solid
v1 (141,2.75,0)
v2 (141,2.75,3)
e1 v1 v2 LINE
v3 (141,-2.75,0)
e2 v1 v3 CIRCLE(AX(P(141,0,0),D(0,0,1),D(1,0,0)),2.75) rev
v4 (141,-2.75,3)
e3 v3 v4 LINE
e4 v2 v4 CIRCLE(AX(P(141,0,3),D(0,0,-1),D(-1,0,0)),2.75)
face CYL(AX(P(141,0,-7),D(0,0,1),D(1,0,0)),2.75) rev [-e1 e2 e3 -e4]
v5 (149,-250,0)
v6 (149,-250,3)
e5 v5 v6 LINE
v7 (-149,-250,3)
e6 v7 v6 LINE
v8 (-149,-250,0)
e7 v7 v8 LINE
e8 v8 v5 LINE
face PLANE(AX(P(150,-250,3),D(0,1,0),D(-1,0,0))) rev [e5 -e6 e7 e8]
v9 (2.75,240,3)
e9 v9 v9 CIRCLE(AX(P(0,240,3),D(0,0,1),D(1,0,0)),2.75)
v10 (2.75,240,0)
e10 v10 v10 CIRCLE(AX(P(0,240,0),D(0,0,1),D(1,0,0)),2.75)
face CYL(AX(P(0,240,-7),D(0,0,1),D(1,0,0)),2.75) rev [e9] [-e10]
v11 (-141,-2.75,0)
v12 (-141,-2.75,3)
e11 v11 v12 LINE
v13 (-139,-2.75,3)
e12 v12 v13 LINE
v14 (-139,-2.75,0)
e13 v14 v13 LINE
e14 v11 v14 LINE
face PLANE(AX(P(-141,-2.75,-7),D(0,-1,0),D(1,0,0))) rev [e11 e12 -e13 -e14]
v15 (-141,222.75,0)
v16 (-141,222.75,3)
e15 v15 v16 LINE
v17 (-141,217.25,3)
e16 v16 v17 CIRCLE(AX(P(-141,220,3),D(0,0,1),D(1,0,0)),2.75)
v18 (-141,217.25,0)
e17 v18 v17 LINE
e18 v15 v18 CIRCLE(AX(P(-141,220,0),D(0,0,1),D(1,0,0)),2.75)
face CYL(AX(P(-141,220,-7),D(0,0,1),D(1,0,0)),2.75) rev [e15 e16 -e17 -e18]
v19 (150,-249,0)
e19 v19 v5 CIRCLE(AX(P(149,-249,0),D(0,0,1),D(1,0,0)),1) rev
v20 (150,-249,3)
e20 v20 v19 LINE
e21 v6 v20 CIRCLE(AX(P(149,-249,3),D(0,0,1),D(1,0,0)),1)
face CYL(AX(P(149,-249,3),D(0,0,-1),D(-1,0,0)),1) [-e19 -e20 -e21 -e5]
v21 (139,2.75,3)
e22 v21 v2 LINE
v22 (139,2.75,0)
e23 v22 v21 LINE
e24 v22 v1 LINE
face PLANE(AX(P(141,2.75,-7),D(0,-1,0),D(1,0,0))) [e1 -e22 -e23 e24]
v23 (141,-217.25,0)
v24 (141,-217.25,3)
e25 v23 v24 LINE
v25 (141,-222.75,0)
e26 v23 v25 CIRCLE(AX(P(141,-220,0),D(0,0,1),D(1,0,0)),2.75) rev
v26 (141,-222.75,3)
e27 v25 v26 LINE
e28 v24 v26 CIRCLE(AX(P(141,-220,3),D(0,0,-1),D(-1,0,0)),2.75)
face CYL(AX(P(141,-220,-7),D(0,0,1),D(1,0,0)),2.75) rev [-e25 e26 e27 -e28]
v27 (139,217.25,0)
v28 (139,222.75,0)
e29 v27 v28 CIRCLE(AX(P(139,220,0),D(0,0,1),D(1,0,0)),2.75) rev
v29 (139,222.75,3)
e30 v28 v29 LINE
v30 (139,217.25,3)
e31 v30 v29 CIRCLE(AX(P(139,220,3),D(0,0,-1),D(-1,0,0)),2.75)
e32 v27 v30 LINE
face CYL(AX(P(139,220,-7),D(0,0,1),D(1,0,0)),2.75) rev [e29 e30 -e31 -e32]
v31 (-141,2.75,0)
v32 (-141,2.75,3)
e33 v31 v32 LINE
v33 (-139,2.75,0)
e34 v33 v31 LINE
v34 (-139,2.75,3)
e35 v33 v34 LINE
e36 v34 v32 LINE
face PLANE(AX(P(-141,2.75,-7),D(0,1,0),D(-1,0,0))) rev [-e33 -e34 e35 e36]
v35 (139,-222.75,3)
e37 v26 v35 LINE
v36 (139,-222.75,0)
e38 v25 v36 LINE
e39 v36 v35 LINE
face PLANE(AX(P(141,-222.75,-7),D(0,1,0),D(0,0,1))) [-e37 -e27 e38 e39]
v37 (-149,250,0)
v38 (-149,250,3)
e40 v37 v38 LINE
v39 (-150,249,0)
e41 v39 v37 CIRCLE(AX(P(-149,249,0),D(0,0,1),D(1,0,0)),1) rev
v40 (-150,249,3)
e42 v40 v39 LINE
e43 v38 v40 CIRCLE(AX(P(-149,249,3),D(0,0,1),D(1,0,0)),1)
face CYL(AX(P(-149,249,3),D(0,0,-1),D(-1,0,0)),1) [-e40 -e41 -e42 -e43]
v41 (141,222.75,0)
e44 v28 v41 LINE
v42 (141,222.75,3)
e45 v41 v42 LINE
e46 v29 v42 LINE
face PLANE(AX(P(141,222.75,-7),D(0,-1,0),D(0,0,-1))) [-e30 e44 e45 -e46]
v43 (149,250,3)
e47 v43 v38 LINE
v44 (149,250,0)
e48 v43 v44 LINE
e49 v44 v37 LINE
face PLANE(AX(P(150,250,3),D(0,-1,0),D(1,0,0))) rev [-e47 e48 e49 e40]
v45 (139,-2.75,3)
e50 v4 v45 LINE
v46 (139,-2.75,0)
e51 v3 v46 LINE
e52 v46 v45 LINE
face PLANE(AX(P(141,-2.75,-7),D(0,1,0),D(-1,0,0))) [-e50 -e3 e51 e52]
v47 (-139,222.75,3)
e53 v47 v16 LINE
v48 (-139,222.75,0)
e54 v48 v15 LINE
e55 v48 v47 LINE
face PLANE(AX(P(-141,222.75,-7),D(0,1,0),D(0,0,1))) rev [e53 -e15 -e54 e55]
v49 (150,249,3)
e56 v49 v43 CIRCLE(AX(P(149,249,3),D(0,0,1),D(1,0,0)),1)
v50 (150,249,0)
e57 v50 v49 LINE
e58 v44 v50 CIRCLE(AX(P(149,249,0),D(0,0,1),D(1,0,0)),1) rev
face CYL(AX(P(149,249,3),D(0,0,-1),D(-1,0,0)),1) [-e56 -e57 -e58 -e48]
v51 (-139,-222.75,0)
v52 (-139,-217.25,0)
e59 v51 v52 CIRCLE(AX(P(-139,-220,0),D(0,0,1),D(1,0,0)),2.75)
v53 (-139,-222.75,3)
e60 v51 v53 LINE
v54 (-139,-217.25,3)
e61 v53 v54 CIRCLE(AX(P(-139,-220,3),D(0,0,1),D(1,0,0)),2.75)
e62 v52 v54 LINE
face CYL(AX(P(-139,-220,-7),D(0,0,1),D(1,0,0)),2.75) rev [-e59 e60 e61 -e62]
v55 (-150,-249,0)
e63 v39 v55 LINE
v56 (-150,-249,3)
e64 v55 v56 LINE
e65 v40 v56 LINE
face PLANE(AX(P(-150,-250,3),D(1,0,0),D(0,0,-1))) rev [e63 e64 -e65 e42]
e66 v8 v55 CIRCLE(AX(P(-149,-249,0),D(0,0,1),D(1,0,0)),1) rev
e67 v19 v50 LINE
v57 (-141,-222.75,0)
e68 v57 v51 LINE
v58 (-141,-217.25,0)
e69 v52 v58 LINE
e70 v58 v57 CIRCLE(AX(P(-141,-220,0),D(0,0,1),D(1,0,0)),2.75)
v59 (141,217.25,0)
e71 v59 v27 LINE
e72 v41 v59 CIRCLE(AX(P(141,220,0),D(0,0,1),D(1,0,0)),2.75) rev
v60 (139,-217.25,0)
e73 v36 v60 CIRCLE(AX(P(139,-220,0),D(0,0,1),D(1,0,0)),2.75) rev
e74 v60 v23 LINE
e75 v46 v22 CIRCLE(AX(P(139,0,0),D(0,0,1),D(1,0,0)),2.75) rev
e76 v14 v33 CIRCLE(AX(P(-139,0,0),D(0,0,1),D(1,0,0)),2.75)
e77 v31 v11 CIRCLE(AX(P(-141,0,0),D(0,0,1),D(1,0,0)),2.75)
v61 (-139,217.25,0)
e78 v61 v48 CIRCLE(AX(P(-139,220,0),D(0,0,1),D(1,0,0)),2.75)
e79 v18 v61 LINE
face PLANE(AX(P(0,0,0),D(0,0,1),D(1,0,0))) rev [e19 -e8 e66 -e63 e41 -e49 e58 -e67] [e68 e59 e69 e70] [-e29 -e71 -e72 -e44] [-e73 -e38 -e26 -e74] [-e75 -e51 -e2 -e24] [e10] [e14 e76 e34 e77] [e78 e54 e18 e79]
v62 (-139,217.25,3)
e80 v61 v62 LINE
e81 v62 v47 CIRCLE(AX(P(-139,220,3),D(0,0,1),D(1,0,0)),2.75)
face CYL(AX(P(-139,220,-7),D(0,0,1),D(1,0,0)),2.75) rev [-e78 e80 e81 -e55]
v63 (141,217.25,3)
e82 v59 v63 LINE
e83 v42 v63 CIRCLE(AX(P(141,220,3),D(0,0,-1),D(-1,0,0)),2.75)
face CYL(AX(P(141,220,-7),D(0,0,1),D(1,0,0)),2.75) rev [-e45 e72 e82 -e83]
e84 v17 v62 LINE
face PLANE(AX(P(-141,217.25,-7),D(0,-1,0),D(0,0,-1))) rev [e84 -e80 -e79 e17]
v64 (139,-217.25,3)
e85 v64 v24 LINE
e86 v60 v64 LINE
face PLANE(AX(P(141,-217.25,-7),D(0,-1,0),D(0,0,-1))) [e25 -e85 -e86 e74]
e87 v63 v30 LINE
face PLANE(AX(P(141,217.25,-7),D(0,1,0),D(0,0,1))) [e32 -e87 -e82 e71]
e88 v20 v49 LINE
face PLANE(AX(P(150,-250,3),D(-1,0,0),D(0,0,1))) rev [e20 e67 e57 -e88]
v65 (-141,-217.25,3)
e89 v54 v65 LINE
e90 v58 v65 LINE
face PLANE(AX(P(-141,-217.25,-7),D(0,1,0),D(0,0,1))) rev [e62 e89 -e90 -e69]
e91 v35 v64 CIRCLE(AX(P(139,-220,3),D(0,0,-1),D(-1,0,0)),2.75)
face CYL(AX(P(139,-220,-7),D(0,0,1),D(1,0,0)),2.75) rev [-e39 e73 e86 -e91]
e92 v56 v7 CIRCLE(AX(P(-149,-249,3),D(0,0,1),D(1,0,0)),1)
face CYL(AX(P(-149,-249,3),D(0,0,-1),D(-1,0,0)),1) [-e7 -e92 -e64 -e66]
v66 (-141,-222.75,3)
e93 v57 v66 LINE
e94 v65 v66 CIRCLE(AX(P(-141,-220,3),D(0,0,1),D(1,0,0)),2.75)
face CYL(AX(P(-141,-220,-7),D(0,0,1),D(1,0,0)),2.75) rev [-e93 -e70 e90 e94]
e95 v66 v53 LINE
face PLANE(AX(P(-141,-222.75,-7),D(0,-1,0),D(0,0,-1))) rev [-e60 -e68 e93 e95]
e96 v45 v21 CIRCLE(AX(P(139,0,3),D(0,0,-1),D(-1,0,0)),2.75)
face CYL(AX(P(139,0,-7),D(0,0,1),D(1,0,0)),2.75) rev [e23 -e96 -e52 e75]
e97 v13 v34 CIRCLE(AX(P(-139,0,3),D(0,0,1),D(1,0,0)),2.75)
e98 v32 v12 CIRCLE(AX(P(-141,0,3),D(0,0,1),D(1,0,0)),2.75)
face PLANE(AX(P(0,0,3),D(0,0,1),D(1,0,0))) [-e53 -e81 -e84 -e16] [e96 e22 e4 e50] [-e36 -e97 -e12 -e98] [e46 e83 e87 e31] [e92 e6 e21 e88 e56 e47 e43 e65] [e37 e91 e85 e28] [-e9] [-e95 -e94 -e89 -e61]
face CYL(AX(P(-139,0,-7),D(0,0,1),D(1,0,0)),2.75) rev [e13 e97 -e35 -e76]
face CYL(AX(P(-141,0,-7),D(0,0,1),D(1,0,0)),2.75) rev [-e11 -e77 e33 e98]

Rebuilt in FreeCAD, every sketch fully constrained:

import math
import FreeCAD as App
import Part
import Sketcher

V = App.Vector
Q = App.Units.Quantity


def edges_at(feature, points):
    """Names of the edges that pass closest to the given points."""
    edges = feature.Shape.Edges
    near = lambda p: min(range(len(edges)), key=lambda i: edges[i].distToShape(Part.Vertex(*p))[0])
    return sorted({f"Edge{near(p) + 1}" for p in points})

doc = App.newDocument("Part")
body = doc.addObject("PartDesign::Body", "Body")

# Sketch on XY plane
sketch1 = body.newObject("Sketcher::SketchObject", "Sketch")
sketch1.AttachmentSupport = (doc.getObject("XY_Plane"), [""])
sketch1.MapMode = "FlatFace"
sketch1.addGeometry([
    Part.LineSegment(V(-150, 250, 0), V(-150, -250, 0)),
    Part.LineSegment(V(-150, -250, 0), V(150, -250, 0)),
    Part.LineSegment(V(150, -250, 0), V(150, 250, 0)),
    Part.LineSegment(V(150, 250, 0), V(-150, 250, 0)),
], False)
sketch1.addConstraint([
    Sketcher.Constraint("Coincident", 0, 2, 1, 1),
    Sketcher.Constraint("Coincident", 1, 2, 2, 1),
    Sketcher.Constraint("Coincident", 2, 2, 3, 1),
    Sketcher.Constraint("Coincident", 3, 2, 0, 1),
    Sketcher.Constraint("Vertical", 0),
    Sketcher.Constraint("Horizontal", 1),
    Sketcher.Constraint("Vertical", 2),
    Sketcher.Constraint("Horizontal", 3),
    Sketcher.Constraint("Symmetric", 0, 2, 2, 2, -1, 1),
    Sketcher.Constraint("DistanceX", 1, 1, 1, 2, Q("300 mm")),
    Sketcher.Constraint("DistanceY", 0, 2, 0, 1, Q("500 mm")),
])
pad1 = body.newObject("PartDesign::Pad", "Pad")
pad1.Profile = sketch1
pad1.Length = 3

# Sketch on XY plane
sketch2 = body.newObject("Sketcher::SketchObject", "Sketch001")
sketch2.AttachmentSupport = (doc.getObject("XY_Plane"), [""])
sketch2.MapMode = "FlatFace"
sketch2.AttachmentOffset = App.Placement(V(0, 0, 3), App.Rotation())
sketch2.addGeometry([
    Part.Circle(V(0, 240, 0), V(0, 0, 1), 2.8),  # 0
    Part.LineSegment(V(-139, -217.2, 0), V(-141, -217.2, 0)),  # 1
    Part.ArcOfCircle(Part.Circle(V(-141, -220, 0), V(0, 0, 1), 2.8), math.radians(90), math.radians(270)),  # 2
    Part.LineSegment(V(-141, -222.8, 0), V(-139, -222.8, 0)),  # 3
    Part.ArcOfCircle(Part.Circle(V(-139, -220, 0), V(0, 0, 1), 2.8), math.radians(-90), math.radians(90)),  # 4
    Part.LineSegment(V(-139, 222.8, 0), V(-141, 222.8, 0)),  # 5
    Part.ArcOfCircle(Part.Circle(V(-141, 220, 0), V(0, 0, 1), 2.8), math.radians(90), math.radians(270)),  # 6
    Part.LineSegment(V(-141, 217.2, 0), V(-139, 217.2, 0)),  # 7
    Part.ArcOfCircle(Part.Circle(V(-139, 220, 0), V(0, 0, 1), 2.8), math.radians(-90), math.radians(90)),  # 8
    Part.LineSegment(V(-139, 2.8, 0), V(-141, 2.8, 0)),  # 9
    Part.ArcOfCircle(Part.Circle(V(-141, 0, 0), V(0, 0, 1), 2.8), math.radians(90), math.radians(270)),  # 10
    Part.LineSegment(V(-141, -2.8, 0), V(-139, -2.8, 0)),  # 11
    Part.ArcOfCircle(Part.Circle(V(-139, 0, 0), V(0, 0, 1), 2.8), math.radians(-90), math.radians(90)),  # 12
], False)
sketch2.addConstraint([
    Sketcher.Constraint("Tangent", 1, 2, 2, 1),
    Sketcher.Constraint("Tangent", 2, 2, 3, 1),
    Sketcher.Constraint("Tangent", 3, 2, 4, 1),
    Sketcher.Constraint("Tangent", 4, 2, 1, 1),
    Sketcher.Constraint("Tangent", 5, 2, 6, 1),
    Sketcher.Constraint("Tangent", 6, 2, 7, 1),
    Sketcher.Constraint("Tangent", 7, 2, 8, 1),
    Sketcher.Constraint("Tangent", 8, 2, 5, 1),
    Sketcher.Constraint("Tangent", 9, 2, 10, 1),
    Sketcher.Constraint("Tangent", 10, 2, 11, 1),
    Sketcher.Constraint("Tangent", 11, 2, 12, 1),
    Sketcher.Constraint("Tangent", 12, 2, 9, 1),
    Sketcher.Constraint("Horizontal", 1),
    Sketcher.Constraint("Horizontal", 3),
    Sketcher.Constraint("Horizontal", 5),
    Sketcher.Constraint("Horizontal", 7),
    Sketcher.Constraint("Horizontal", 9),
    Sketcher.Constraint("Horizontal", 11),
    Sketcher.Constraint("Equal", 0, 2),
    Sketcher.Constraint("Equal", 4, 6),
    Sketcher.Constraint("Equal", 8, 10),
    Sketcher.Constraint("Symmetric", 2, 3, 6, 3, -1),
    Sketcher.Constraint("PointOnObject", 0, 3, -2),
    Sketcher.Constraint("PointOnObject", 10, 3, -1),
    Sketcher.Constraint("Vertical", 4, 3, 8, 3),
    Sketcher.Constraint("Vertical", 6, 3, 10, 3),
    Sketcher.Constraint("Vertical", 8, 3, 12, 3),
    Sketcher.Constraint("Diameter", 0, Q("5.5 mm")),
    Sketcher.Constraint("DistanceX", 1, 2, 1, 1, Q("2 mm")),
    Sketcher.Constraint("DistanceY", -1, 1, 0, 3, Q("240 mm")),
    Sketcher.Constraint("DistanceX", 2, 3, -1, 1, Q("141 mm")),
    Sketcher.Constraint("DistanceY", 2, 3, -1, 1, Q("220 mm")),
])
pocket1 = body.newObject("PartDesign::Pocket", "Pocket")
pocket1.Profile = sketch2
pocket1.Length = 10
doc.recompute()

mirrored = body.newObject("PartDesign::Mirrored", "Mirrored")
mirrored.Originals = [pocket1]
mirrored.MirrorPlane = (doc.getObject("YZ_Plane"), [""])
body.Tip = mirrored
doc.recompute()

fillet = body.newObject("PartDesign::Fillet", "Fillet")
fillet.Base = (mirrored, edges_at(mirrored, [
    (-150, 250, 1.5),
    (150, 250, 1.5),
    (150, -250, 1.5),
    (-150, -250, 1.5),
]))
fillet.Radius = 1

doc.recompute()
